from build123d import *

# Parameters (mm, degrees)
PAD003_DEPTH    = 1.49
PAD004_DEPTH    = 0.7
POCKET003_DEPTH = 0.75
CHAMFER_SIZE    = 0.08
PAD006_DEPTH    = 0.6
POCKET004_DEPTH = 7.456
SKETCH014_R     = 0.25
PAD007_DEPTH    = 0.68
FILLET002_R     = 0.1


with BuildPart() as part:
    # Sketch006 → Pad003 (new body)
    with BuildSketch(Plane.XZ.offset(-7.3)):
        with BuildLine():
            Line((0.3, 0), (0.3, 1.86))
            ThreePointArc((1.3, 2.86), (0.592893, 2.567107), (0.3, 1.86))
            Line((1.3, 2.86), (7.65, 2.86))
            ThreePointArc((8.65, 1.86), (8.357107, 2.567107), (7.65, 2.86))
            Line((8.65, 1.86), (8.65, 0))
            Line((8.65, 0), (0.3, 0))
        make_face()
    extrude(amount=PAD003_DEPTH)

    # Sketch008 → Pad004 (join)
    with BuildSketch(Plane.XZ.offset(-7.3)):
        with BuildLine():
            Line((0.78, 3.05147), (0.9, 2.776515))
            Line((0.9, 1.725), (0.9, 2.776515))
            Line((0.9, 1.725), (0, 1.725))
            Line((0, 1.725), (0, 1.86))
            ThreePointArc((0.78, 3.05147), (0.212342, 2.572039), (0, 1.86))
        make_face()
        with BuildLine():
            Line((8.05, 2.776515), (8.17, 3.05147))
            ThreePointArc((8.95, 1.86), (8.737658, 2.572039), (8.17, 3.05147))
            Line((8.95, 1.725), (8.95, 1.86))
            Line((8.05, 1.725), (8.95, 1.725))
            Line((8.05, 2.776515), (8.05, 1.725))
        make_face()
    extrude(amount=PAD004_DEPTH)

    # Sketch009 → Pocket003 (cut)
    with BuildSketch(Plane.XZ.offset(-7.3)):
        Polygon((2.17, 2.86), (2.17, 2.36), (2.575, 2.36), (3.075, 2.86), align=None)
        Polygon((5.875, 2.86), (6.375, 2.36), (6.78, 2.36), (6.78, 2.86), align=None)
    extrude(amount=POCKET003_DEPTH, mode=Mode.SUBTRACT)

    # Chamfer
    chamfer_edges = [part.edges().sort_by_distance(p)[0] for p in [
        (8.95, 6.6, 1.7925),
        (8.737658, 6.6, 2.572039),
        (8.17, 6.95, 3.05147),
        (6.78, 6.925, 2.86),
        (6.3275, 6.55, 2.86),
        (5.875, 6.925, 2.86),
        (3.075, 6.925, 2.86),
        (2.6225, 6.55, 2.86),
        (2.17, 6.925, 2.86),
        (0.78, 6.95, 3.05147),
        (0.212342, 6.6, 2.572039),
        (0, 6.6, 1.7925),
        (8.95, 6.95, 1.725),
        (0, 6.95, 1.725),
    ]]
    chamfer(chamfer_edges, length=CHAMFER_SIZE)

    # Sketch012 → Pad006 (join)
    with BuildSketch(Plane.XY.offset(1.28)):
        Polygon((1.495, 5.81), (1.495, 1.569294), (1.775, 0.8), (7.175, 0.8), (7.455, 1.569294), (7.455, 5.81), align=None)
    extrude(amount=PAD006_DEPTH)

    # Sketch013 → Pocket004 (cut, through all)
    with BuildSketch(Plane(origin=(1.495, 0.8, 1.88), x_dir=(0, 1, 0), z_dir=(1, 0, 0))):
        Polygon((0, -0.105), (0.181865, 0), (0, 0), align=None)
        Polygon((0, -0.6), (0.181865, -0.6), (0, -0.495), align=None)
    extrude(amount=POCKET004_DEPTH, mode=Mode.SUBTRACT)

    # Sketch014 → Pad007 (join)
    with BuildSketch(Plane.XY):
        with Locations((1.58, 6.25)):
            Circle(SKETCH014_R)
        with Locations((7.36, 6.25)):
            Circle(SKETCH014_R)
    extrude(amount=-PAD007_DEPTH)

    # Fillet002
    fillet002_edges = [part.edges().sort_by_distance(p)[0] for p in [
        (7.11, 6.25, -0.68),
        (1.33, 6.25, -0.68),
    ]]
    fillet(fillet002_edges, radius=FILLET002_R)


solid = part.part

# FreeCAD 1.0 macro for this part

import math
import FreeCAD as App
import Part
import Sketcher

V = App.Vector
Q = App.Units.Quantity


def edges_at(feature, points):
    """Names of the edges that pass closest to the given points."""
    edges = feature.Shape.Edges
    near = lambda p: min(range(len(edges)), key=lambda i: edges[i].distToShape(Part.Vertex(*p))[0])
    return sorted({f"Edge{near(p) + 1}" for p in points})


def add_polygon(sketch, points):
    """Adds a closed chain of lines whose ends are joined by coincident constraints."""
    first, n = sketch.GeometryCount, len(points)
    for a, b in zip(points, points[1:] + points[:1]):
        sketch.addGeometry(Part.LineSegment(App.Vector(*a, 0), App.Vector(*b, 0)), False)
    for i in range(n):
        sketch.addConstraint(Sketcher.Constraint("Coincident", first + i, 2, first + (i + 1) % n, 1))

doc = App.newDocument("Part")
params = doc.addObject("Spreadsheet::Sheet", "Params")
for row, (alias, value) in enumerate([
    ("sketch1_radius", "0.999999 mm"),
    ("sketch1_width", "8.35 mm"),
    ("sketch1_height", "1.86 mm"),
    ("pad1_length", "1.49 mm"),
    ("sketch2_radius", "1.300002 mm"),
    ("sketch2_width", "0.9 mm"),
    ("sketch2_length", "0.3 mm"),
    ("pad2_length", "0.7 mm"),
    ("sketch3_height", "0.5 mm"),
    ("pocket1_length", "0.75 mm"),
    ("chamfer_size", "0.08 mm"),
    ("sketch4_width", "5.4 mm"),
    ("sketch4_width2", "5.96 mm"),
    ("pad3_length", "0.6 mm"),
    ("sketch5_length", "0.21 mm"),
    ("sketch6_diameter", "0.5 mm"),
    ("pad4_length", "0.68 mm"),
    ("fillet_radius", "0.1 mm"),
], start=1):
    params.set(f"A{row}", alias)
    params.set(f"B{row}", "=" + value)
    params.setAlias(f"B{row}", alias)

body = doc.addObject("PartDesign::Body", "Body")

# Sketch on XZ plane
sketch1 = doc.addObject("Sketcher::SketchObject", "Sketch")
body.addObject(sketch1)
sketch1.AttachmentSupport = (doc.XZ_Plane, [""])
sketch1.MapMode = "FlatFace"
sketch1.AttachmentOffset = App.Placement(V(0, 0, -7.3), App.Rotation())
sketch1.addGeometry([
    Part.LineSegment(V(0.3, 1.9, 0), V(0.3, 0, 0)),  # 0
    Part.LineSegment(V(0.3, 0, 0), V(8.7, 0, 0)),  # 1
    Part.LineSegment(V(8.7, 0, 0), V(8.7, 1.9, 0)),  # 2
    Part.ArcOfCircle(Part.Circle(V(7.7, 1.9, 0), V(0, 0, 1), 1), math.radians(0), math.radians(90)),  # 3
    Part.LineSegment(V(7.7, 2.9, 0), V(1.3, 2.9, 0)),  # 4
    Part.ArcOfCircle(Part.Circle(V(1.3, 1.9, 0), V(0, 0, 1), 1), math.radians(90), math.radians(180)),  # 5
], False)
sketch1.addConstraint([
    Sketcher.Constraint("Coincident", 0, 2, 1, 1),
    Sketcher.Constraint("Coincident", 1, 2, 2, 1),
    Sketcher.Constraint("Tangent", 2, 2, 3, 1),
    Sketcher.Constraint("Tangent", 3, 2, 4, 1),
    Sketcher.Constraint("Tangent", 4, 2, 5, 1),
    Sketcher.Constraint("Tangent", 5, 2, 0, 1),
    Sketcher.Constraint("Vertical", 0),
    Sketcher.Constraint("Horizontal", 1),
    Sketcher.Constraint("Vertical", 2),
    Sketcher.Constraint("Horizontal", 4),
    Sketcher.Constraint("Equal", 3, 5),
    Sketcher.Constraint("PointOnObject", 0, 2, -1),
    Sketcher.Constraint("Radius", 3, Q("0.999999 mm")),
    Sketcher.Constraint("DistanceX", 1, 1, 1, 2, Q("8.35 mm")),
    Sketcher.Constraint("DistanceY", 0, 2, 0, 1, Q("1.86 mm")),
    Sketcher.Constraint("DistanceX", -1, 1, 5, 3, Q("1.299999 mm")),
])
sketch1.setExpression("Constraints[12]", "Params.sketch1_radius")
sketch1.setExpression("Constraints[13]", "Params.sketch1_width")
sketch1.setExpression("Constraints[14]", "Params.sketch1_height")
pad1 = doc.addObject("PartDesign::Pad", "Pad")
body.addObject(pad1)
pad1.Profile = sketch1
pad1.setExpression("Length", "Params.pad1_length")

# Sketch on XZ plane
sketch2 = doc.addObject("Sketcher::SketchObject", "Sketch001")
body.addObject(sketch2)
sketch2.AttachmentSupport = (doc.XZ_Plane, [""])
sketch2.MapMode = "FlatFace"
sketch2.AttachmentOffset = App.Placement(V(0, 0, -7.3), App.Rotation())
sketch2.addGeometry([
    Part.LineSegment(V(0.9, 2.78, 0), V(0.78, 3.05, 0)),  # 0
    Part.ArcOfCircle(Part.Circle(V(1.3, 1.86, 0), V(0, 0, 1), 1.3), math.radians(114), math.radians(180)),  # 1
    Part.LineSegment(V(0, 1.86, 0), V(0, 1.73, 0)),  # 2
    Part.LineSegment(V(0, 1.73, 0), V(0.9, 1.73, 0)),  # 3
    Part.LineSegment(V(0.9, 1.73, 0), V(0.9, 2.78, 0)),  # 4
    Part.LineSegment(V(8.17, 3.05, 0), V(8.05, 2.78, 0)),  # 5
    Part.LineSegment(V(8.05, 2.78, 0), V(8.05, 1.73, 0)),  # 6
    Part.LineSegment(V(8.05, 1.73, 0), V(8.95, 1.73, 0)),  # 7
    Part.LineSegment(V(8.95, 1.73, 0), V(8.95, 1.86, 0)),  # 8
    Part.ArcOfCircle(Part.Circle(V(7.65, 1.86, 0), V(0, 0, 1), 1.3), math.radians(0), math.radians(66)),  # 9
], False)
sketch2.addConstraint([
    Sketcher.Constraint("Coincident", 0, 2, 1, 1),
    Sketcher.Constraint("Tangent", 1, 2, 2, 1),
    Sketcher.Constraint("Coincident", 2, 2, 3, 1),
    Sketcher.Constraint("Coincident", 3, 2, 4, 1),
    Sketcher.Constraint("Coincident", 4, 2, 0, 1),
    Sketcher.Constraint("Coincident", 5, 2, 6, 1),
    Sketcher.Constraint("Coincident", 6, 2, 7, 1),
    Sketcher.Constraint("Coincident", 7, 2, 8, 1),
    Sketcher.Constraint("Tangent", 8, 2, 9, 1),
    Sketcher.Constraint("Coincident", 9, 2, 5, 1),
    Sketcher.Constraint("Vertical", 2),
    Sketcher.Constraint("Horizontal", 3),
    Sketcher.Constraint("Vertical", 4),
    Sketcher.Constraint("Vertical", 6),
    Sketcher.Constraint("Horizontal", 7),
    Sketcher.Constraint("Vertical", 8),
    Sketcher.Constraint("Equal", 1, 9),
    Sketcher.Constraint("PointOnObject", 1, 2, -2),
    Sketcher.Constraint("Horizontal", 1, 3, 9, 3),
    Sketcher.Constraint("Horizontal", 4, 2, 5, 2),
    Sketcher.Constraint("Horizontal", 3, 2, 6, 2),
    Sketcher.Constraint("Horizontal", 0, 2, 9, 2),
    Sketcher.Constraint("Equal", 3, 7),
    Sketcher.Constraint("Radius", 1, Q("1.300002 mm")),
    Sketcher.Constraint("DistanceX", 3, 1, 3, 2, Q("0.9 mm")),
    Sketcher.Constraint("Distance", 0, Q("0.3 mm")),
    Sketcher.Constraint("DistanceY", 2, 2, 2, 1, Q("0.135 mm")),
    Sketcher.Constraint("DistanceY", -1, 1, 1, 3, Q("1.859999 mm")),
    Sketcher.Constraint("DistanceX", -1, 1, 9, 3, Q("7.649998 mm")),
    Sketcher.Constraint("DistanceX", -1, 1, 0, 2, Q("0.78 mm")),
])
sketch2.setExpression("Constraints[23]", "Params.sketch2_radius")
sketch2.setExpression("Constraints[24]", "Params.sketch2_width")
sketch2.setExpression("Constraints[25]", "Params.sketch2_length")
pad2 = doc.addObject("PartDesign::Pad", "Pad001")
body.addObject(pad2)
pad2.Profile = sketch2
pad2.setExpression("Length", "Params.pad2_length")

# Sketch on XZ plane
sketch3 = doc.addObject("Sketcher::SketchObject", "Sketch002")
body.addObject(sketch3)
sketch3.AttachmentSupport = (doc.XZ_Plane, [""])
sketch3.MapMode = "FlatFace"
sketch3.AttachmentOffset = App.Placement(V(0, 0, -7.3), App.Rotation())
add_polygon(sketch3, [(2.17, 2.86), (2.17, 2.36), (2.58, 2.36), (3.08, 2.86)])  # lines 0-3
add_polygon(sketch3, [(5.88, 2.86), (6.38, 2.36), (6.78, 2.36), (6.78, 2.86)])  # lines 4-7
sketch3.addConstraint([
    Sketcher.Constraint("Vertical", 0),
    Sketcher.Constraint("Horizontal", 1),
    Sketcher.Constraint("Horizontal", 3),
    Sketcher.Constraint("Horizontal", 5),
    Sketcher.Constraint("Vertical", 6),
    Sketcher.Constraint("Horizontal", 7),
    Sketcher.Constraint("Perpendicular", 2, 4),
    Sketcher.Constraint("Horizontal", 1, 2, 4, 2),
    Sketcher.Constraint("Horizontal", 3, 2, 6, 2),
    Sketcher.Constraint("Equal", 1, 5),
    Sketcher.Constraint("Equal", 3, 7),
    Sketcher.Constraint("DistanceY", 0, 2, 0, 1, Q("0.5 mm")),
    Sketcher.Constraint("DistanceX", 2, 2, 4, 2, Q("3.3 mm")),
    Sketcher.Constraint("DistanceX", 1, 1, 1, 2, Q("0.405 mm")),
    Sketcher.Constraint("DistanceX", -1, 1, 0, 2, Q("2.17 mm")),
    Sketcher.Constraint("DistanceY", -1, 1, 0, 2, Q("2.36 mm")),
])
sketch3.setExpression("Constraints[19]", "Params.sketch3_height")
pocket1 = doc.addObject("PartDesign::Pocket", "Pocket")
body.addObject(pocket1)
pocket1.Profile = sketch3
pocket1.setExpression("Length", "Params.pocket1_length")
pocket1.Reversed = True
doc.recompute()

chamfer = doc.addObject("PartDesign::Chamfer", "Chamfer")
body.addObject(chamfer)
chamfer.Base = (pocket1, edges_at(pocket1, [
    (8.95, 6.6, 1.792),
    (8.738, 6.6, 2.572),
    (8.17, 6.95, 3.051),
    (6.78, 6.925, 2.86),
    (6.327, 6.55, 2.86),
    (5.875, 6.925, 2.86),
    (3.075, 6.925, 2.86),
    (2.623, 6.55, 2.86),
    (2.17, 6.925, 2.86),
    (0.78, 6.95, 3.051),
    (0.212, 6.6, 2.572),
    (0, 6.6, 1.792),
    (8.95, 6.95, 1.725),
    (0, 6.95, 1.725),
]))
chamfer.setExpression("Size", "Params.chamfer_size")

# Sketch on XY plane
sketch4 = doc.addObject("Sketcher::SketchObject", "Sketch003")
body.addObject(sketch4)
sketch4.AttachmentSupport = (doc.XY_Plane, [""])
sketch4.MapMode = "FlatFace"
sketch4.AttachmentOffset = App.Placement(V(0, 0, 1.28), App.Rotation())
add_polygon(sketch4, [(1.5, 5.8), (1.5, 1.6), (1.8, 0.8), (7.2, 0.8), (7.5, 1.6), (7.5, 5.8)])  # lines 0-5
sketch4.addConstraint([
    Sketcher.Constraint("Vertical", 0),
    Sketcher.Constraint("Horizontal", 2),
    Sketcher.Constraint("Vertical", 4),
    Sketcher.Constraint("Horizontal", 5),
    Sketcher.Constraint("Horizontal", 0, 2, 3, 2),
    Sketcher.Constraint("Equal", 1, 3),
    Sketcher.Constraint("Angle", 1, Q("-70.000008 deg")),
    Sketcher.Constraint("DistanceX", 2, 1, 2, 2, Q("5.4 mm")),
    Sketcher.Constraint("DistanceX", 5, 2, 5, 1, Q("5.96 mm")),
    Sketcher.Constraint("DistanceY", -1, 1, 1, 2, Q("0.8 mm")),
    Sketcher.Constraint("DistanceY", -1, 1, 4, 2, Q("5.81 mm")),
    Sketcher.Constraint("DistanceX", -1, 1, 0, 2, Q("1.495 mm")),
])
sketch4.setExpression("Constraints[13]", "Params.sketch4_width")
sketch4.setExpression("Constraints[14]", "Params.sketch4_width2")
pad3 = doc.addObject("PartDesign::Pad", "Pad002")
body.addObject(pad3)
pad3.Profile = sketch4
pad3.setExpression("Length", "Params.pad3_length")

# Sketch on YZ plane
sketch5 = doc.addObject("Sketcher::SketchObject", "Sketch004")
body.addObject(sketch5)
sketch5.AttachmentSupport = (doc.YZ_Plane, [""])
sketch5.MapMode = "FlatFace"
sketch5.AttachmentOffset = App.Placement(V(0, 0, 1.495), App.Rotation())
add_polygon(sketch5, [(0.8, 1.77), (0.98, 1.88), (0.8, 1.88)])  # lines 0-2
add_polygon(sketch5, [(0.8, 1.28), (0.98, 1.28), (0.8, 1.39)])  # lines 3-5
sketch5.addConstraint([
    Sketcher.Constraint("Horizontal", 1),
    Sketcher.Constraint("Vertical", 2),
    Sketcher.Constraint("Horizontal", 3),
    Sketcher.Constraint("Vertical", 5),
    Sketcher.Constraint("Vertical", 0, 2, 3, 2),
    Sketcher.Constraint("Vertical", 2, 2, 4, 2),
    Sketcher.Constraint("Equal", 2, 5),
    Sketcher.Constraint("DistanceX", -1, 1, 1, 2, Q("0.8 mm")),
    Sketcher.Constraint("DistanceY", 3, 2, 0, 2, Q("0.6 mm")),
    Sketcher.Constraint("Distance", 0, Q("0.21 mm")),
    Sketcher.Constraint("DistanceY", 2, 2, 2, 1, Q("0.105 mm")),
    Sketcher.Constraint("DistanceY", -1, 1, 0, 2, Q("1.88 mm")),
])
sketch5.setExpression("Constraints[15]", "Params.sketch5_length")
pocket2 = doc.addObject("PartDesign::Pocket", "Pocket001")
body.addObject(pocket2)
pocket2.Profile = sketch5
pocket2.Type = "ThroughAll"
pocket2.Reversed = True

# Sketch on XY plane
sketch6 = doc.addObject("Sketcher::SketchObject", "Sketch005")
body.addObject(sketch6)
sketch6.AttachmentSupport = (doc.XY_Plane, [""])
sketch6.MapMode = "FlatFace"
sketch6.addGeometry([
    Part.Circle(V(1.58, 6.25, 0), V(0, 0, 1), 0.25),
    Part.Circle(V(7.36, 6.25, 0), V(0, 0, 1), 0.25),
], False)
sketch6.addConstraint([
    Sketcher.Constraint("Equal", 0, 1),
    Sketcher.Constraint("Horizontal", 0, 3, 1, 3),
    Sketcher.Constraint("Diameter", 0, Q("0.5 mm")),
    Sketcher.Constraint("DistanceX", -1, 1, 0, 3, Q("1.58 mm")),
    Sketcher.Constraint("DistanceY", -1, 1, 0, 3, Q("6.25 mm")),
    Sketcher.Constraint("DistanceX", -1, 1, 1, 3, Q("7.36 mm")),
])
sketch6.setExpression("Constraints[2]", "Params.sketch6_diameter")
pad4 = doc.addObject("PartDesign::Pad", "Pad003")
body.addObject(pad4)
pad4.Profile = sketch6
pad4.setExpression("Length", "Params.pad4_length")
pad4.Reversed = True
doc.recompute()

fillet = doc.addObject("PartDesign::Fillet", "Fillet")
body.addObject(fillet)
fillet.Base = (pad4, edges_at(pad4, [(7.11, 6.25, -0.68), (1.33, 6.25, -0.68)]))
fillet.setExpression("Radius", "Params.fillet_radius")

doc.recompute()
